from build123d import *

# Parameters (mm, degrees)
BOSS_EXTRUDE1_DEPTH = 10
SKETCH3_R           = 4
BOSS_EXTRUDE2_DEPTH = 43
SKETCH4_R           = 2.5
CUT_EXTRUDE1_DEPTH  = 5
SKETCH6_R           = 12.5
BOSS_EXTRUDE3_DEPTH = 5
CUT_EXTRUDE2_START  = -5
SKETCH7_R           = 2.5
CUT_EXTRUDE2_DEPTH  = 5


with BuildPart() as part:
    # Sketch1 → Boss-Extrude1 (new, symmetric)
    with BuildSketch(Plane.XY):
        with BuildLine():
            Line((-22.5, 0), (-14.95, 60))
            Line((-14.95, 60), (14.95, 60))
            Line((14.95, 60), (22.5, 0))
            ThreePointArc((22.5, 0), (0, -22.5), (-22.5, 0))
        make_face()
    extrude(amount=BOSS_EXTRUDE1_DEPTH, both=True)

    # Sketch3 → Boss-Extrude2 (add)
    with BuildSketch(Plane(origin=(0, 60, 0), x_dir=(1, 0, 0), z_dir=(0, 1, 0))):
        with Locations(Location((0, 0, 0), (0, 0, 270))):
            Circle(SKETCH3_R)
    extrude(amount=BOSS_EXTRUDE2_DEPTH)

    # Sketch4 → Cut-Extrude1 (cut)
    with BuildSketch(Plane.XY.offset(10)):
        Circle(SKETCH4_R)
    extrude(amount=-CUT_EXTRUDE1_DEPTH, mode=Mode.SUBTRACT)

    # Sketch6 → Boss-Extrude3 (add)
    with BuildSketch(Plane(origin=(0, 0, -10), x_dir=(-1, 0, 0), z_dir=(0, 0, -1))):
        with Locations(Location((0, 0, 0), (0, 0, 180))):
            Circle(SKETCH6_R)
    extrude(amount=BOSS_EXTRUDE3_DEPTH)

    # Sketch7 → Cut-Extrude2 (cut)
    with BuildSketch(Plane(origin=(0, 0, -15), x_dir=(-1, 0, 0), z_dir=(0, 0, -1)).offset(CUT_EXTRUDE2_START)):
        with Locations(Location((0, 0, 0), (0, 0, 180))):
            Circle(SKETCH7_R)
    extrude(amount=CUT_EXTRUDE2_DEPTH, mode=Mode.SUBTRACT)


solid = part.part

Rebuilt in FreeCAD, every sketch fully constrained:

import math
import FreeCAD as App
import Part
import Sketcher
from FreeCAD import Vector
Q = App.Units.Quantity

doc = App.newDocument("Part")
body = doc.addObject("PartDesign::Body", "Body")

# Sketch on XY plane
sketch1 = doc.addObject("Sketcher::SketchObject", "Sketch")
body.addObject(sketch1)
sketch1.AttachmentSupport = (doc.XY_Plane, [""])
sketch1.MapMode = "FlatFace"
sketch1.addGeometry(Part.LineSegment(Vector(-15, 60, 0), Vector(-22, 0, 0)), False)
sketch1.addGeometry(Part.ArcOfCircle(Part.Circle(Vector(0, 0, 0), Vector(0, 0, 1), 22), math.radians(180), math.radians(360)), False)
sketch1.addGeometry(Part.LineSegment(Vector(22, 0, 0), Vector(15, 60, 0)), False)
sketch1.addGeometry(Part.LineSegment(Vector(15, 60, 0), Vector(-15, 60, 0)), False)
sketch1.addConstraint(Sketcher.Constraint("Coincident", 0, 2, 1, 1))
sketch1.addConstraint(Sketcher.Constraint("Coincident", 1, 2, 2, 1))
sketch1.addConstraint(Sketcher.Constraint("Coincident", 2, 2, 3, 1))
sketch1.addConstraint(Sketcher.Constraint("Coincident", 3, 2, 0, 1))
sketch1.addConstraint(Sketcher.Constraint("Horizontal", 3))
sketch1.addConstraint(Sketcher.Constraint("Coincident", 1, 3, -1, 1))
sketch1.addConstraint(Sketcher.Constraint("PointOnObject", 0, 2, -1))
sketch1.addConstraint(Sketcher.Constraint("PointOnObject", 1, 2, -1))
sketch1.addConstraint(Sketcher.Constraint("Equal", 0, 2))
sketch1.addConstraint(Sketcher.Constraint("Radius", 1, Q("22.5 mm")))
sketch1.addConstraint(Sketcher.Constraint("DistanceX", 3, 2, 3, 1, Q("29.9 mm")))
sketch1.addConstraint(Sketcher.Constraint("DistanceY", -1, 1, 2, 2, Q("60 mm")))
pad1 = doc.addObject("PartDesign::Pad", "Pad")
body.addObject(pad1)
pad1.Profile = sketch1
pad1.Length = 20
pad1.Midplane = True

# Sketch on XZ plane
sketch2 = doc.addObject("Sketcher::SketchObject", "Sketch001")
body.addObject(sketch2)
sketch2.AttachmentSupport = (doc.XZ_Plane, [""])
sketch2.MapMode = "FlatFace"
sketch2.AttachmentOffset = App.Placement(Vector(0, 0, -60), App.Rotation())
sketch2.addGeometry(Part.Circle(Vector(0, 0, 0), Vector(0, 0, 1), 4), False)
sketch2.addConstraint(Sketcher.Constraint("Coincident", 0, 3, -1, 1))
sketch2.addConstraint(Sketcher.Constraint("Diameter", 0, Q("8 mm")))
pad2 = doc.addObject("PartDesign::Pad", "Pad001")
body.addObject(pad2)
pad2.Profile = sketch2
pad2.Length = 43
pad2.Reversed = True

# Sketch on XY plane
sketch3 = doc.addObject("Sketcher::SketchObject", "Sketch002")
body.addObject(sketch3)
sketch3.AttachmentSupport = (doc.XY_Plane, [""])
sketch3.MapMode = "FlatFace"
sketch3.AttachmentOffset = App.Placement(Vector(0, 0, 10), App.Rotation())
sketch3.addGeometry(Part.Circle(Vector(0, 0, 0), Vector(0, 0, 1), 2.5), False)
sketch3.addConstraint(Sketcher.Constraint("Coincident", 0, 3, -1, 1))
sketch3.addConstraint(Sketcher.Constraint("Diameter", 0, Q("5 mm")))
pocket1 = doc.addObject("PartDesign::Pocket", "Pocket")
body.addObject(pocket1)
pocket1.Profile = sketch3
pocket1.Length = 5

# Sketch on XY plane
sketch4 = doc.addObject("Sketcher::SketchObject", "Sketch003")
body.addObject(sketch4)
sketch4.AttachmentSupport = (doc.XY_Plane, [""])
sketch4.MapMode = "FlatFace"
sketch4.AttachmentOffset = App.Placement(Vector(0, 0, -10), App.Rotation())
sketch4.addGeometry(Part.Circle(Vector(0, 0, 0), Vector(0, 0, 1), 12), False)
sketch4.addConstraint(Sketcher.Constraint("Coincident", 0, 3, -1, 1))
sketch4.addConstraint(Sketcher.Constraint("Diameter", 0, Q("25 mm")))
pad3 = doc.addObject("PartDesign::Pad", "Pad002")
body.addObject(pad3)
pad3.Profile = sketch4
pad3.Length = 5
pad3.Reversed = True

# Sketch on XY plane
sketch5 = doc.addObject("Sketcher::SketchObject", "Sketch004")
body.addObject(sketch5)
sketch5.AttachmentSupport = (doc.XY_Plane, [""])
sketch5.MapMode = "FlatFace"
sketch5.AttachmentOffset = App.Placement(Vector(0, 0, -10), App.Rotation())
sketch5.addGeometry(Part.Circle(Vector(0, 0, 0), Vector(0, 0, 1), 2.5), False)
sketch5.addConstraint(Sketcher.Constraint("Coincident", 0, 3, -1, 1))
sketch5.addConstraint(Sketcher.Constraint("Diameter", 0, Q("5 mm")))
pocket2 = doc.addObject("PartDesign::Pocket", "Pocket001")
body.addObject(pocket2)
pocket2.Profile = sketch5
pocket2.Length = 5

doc.recompute()
